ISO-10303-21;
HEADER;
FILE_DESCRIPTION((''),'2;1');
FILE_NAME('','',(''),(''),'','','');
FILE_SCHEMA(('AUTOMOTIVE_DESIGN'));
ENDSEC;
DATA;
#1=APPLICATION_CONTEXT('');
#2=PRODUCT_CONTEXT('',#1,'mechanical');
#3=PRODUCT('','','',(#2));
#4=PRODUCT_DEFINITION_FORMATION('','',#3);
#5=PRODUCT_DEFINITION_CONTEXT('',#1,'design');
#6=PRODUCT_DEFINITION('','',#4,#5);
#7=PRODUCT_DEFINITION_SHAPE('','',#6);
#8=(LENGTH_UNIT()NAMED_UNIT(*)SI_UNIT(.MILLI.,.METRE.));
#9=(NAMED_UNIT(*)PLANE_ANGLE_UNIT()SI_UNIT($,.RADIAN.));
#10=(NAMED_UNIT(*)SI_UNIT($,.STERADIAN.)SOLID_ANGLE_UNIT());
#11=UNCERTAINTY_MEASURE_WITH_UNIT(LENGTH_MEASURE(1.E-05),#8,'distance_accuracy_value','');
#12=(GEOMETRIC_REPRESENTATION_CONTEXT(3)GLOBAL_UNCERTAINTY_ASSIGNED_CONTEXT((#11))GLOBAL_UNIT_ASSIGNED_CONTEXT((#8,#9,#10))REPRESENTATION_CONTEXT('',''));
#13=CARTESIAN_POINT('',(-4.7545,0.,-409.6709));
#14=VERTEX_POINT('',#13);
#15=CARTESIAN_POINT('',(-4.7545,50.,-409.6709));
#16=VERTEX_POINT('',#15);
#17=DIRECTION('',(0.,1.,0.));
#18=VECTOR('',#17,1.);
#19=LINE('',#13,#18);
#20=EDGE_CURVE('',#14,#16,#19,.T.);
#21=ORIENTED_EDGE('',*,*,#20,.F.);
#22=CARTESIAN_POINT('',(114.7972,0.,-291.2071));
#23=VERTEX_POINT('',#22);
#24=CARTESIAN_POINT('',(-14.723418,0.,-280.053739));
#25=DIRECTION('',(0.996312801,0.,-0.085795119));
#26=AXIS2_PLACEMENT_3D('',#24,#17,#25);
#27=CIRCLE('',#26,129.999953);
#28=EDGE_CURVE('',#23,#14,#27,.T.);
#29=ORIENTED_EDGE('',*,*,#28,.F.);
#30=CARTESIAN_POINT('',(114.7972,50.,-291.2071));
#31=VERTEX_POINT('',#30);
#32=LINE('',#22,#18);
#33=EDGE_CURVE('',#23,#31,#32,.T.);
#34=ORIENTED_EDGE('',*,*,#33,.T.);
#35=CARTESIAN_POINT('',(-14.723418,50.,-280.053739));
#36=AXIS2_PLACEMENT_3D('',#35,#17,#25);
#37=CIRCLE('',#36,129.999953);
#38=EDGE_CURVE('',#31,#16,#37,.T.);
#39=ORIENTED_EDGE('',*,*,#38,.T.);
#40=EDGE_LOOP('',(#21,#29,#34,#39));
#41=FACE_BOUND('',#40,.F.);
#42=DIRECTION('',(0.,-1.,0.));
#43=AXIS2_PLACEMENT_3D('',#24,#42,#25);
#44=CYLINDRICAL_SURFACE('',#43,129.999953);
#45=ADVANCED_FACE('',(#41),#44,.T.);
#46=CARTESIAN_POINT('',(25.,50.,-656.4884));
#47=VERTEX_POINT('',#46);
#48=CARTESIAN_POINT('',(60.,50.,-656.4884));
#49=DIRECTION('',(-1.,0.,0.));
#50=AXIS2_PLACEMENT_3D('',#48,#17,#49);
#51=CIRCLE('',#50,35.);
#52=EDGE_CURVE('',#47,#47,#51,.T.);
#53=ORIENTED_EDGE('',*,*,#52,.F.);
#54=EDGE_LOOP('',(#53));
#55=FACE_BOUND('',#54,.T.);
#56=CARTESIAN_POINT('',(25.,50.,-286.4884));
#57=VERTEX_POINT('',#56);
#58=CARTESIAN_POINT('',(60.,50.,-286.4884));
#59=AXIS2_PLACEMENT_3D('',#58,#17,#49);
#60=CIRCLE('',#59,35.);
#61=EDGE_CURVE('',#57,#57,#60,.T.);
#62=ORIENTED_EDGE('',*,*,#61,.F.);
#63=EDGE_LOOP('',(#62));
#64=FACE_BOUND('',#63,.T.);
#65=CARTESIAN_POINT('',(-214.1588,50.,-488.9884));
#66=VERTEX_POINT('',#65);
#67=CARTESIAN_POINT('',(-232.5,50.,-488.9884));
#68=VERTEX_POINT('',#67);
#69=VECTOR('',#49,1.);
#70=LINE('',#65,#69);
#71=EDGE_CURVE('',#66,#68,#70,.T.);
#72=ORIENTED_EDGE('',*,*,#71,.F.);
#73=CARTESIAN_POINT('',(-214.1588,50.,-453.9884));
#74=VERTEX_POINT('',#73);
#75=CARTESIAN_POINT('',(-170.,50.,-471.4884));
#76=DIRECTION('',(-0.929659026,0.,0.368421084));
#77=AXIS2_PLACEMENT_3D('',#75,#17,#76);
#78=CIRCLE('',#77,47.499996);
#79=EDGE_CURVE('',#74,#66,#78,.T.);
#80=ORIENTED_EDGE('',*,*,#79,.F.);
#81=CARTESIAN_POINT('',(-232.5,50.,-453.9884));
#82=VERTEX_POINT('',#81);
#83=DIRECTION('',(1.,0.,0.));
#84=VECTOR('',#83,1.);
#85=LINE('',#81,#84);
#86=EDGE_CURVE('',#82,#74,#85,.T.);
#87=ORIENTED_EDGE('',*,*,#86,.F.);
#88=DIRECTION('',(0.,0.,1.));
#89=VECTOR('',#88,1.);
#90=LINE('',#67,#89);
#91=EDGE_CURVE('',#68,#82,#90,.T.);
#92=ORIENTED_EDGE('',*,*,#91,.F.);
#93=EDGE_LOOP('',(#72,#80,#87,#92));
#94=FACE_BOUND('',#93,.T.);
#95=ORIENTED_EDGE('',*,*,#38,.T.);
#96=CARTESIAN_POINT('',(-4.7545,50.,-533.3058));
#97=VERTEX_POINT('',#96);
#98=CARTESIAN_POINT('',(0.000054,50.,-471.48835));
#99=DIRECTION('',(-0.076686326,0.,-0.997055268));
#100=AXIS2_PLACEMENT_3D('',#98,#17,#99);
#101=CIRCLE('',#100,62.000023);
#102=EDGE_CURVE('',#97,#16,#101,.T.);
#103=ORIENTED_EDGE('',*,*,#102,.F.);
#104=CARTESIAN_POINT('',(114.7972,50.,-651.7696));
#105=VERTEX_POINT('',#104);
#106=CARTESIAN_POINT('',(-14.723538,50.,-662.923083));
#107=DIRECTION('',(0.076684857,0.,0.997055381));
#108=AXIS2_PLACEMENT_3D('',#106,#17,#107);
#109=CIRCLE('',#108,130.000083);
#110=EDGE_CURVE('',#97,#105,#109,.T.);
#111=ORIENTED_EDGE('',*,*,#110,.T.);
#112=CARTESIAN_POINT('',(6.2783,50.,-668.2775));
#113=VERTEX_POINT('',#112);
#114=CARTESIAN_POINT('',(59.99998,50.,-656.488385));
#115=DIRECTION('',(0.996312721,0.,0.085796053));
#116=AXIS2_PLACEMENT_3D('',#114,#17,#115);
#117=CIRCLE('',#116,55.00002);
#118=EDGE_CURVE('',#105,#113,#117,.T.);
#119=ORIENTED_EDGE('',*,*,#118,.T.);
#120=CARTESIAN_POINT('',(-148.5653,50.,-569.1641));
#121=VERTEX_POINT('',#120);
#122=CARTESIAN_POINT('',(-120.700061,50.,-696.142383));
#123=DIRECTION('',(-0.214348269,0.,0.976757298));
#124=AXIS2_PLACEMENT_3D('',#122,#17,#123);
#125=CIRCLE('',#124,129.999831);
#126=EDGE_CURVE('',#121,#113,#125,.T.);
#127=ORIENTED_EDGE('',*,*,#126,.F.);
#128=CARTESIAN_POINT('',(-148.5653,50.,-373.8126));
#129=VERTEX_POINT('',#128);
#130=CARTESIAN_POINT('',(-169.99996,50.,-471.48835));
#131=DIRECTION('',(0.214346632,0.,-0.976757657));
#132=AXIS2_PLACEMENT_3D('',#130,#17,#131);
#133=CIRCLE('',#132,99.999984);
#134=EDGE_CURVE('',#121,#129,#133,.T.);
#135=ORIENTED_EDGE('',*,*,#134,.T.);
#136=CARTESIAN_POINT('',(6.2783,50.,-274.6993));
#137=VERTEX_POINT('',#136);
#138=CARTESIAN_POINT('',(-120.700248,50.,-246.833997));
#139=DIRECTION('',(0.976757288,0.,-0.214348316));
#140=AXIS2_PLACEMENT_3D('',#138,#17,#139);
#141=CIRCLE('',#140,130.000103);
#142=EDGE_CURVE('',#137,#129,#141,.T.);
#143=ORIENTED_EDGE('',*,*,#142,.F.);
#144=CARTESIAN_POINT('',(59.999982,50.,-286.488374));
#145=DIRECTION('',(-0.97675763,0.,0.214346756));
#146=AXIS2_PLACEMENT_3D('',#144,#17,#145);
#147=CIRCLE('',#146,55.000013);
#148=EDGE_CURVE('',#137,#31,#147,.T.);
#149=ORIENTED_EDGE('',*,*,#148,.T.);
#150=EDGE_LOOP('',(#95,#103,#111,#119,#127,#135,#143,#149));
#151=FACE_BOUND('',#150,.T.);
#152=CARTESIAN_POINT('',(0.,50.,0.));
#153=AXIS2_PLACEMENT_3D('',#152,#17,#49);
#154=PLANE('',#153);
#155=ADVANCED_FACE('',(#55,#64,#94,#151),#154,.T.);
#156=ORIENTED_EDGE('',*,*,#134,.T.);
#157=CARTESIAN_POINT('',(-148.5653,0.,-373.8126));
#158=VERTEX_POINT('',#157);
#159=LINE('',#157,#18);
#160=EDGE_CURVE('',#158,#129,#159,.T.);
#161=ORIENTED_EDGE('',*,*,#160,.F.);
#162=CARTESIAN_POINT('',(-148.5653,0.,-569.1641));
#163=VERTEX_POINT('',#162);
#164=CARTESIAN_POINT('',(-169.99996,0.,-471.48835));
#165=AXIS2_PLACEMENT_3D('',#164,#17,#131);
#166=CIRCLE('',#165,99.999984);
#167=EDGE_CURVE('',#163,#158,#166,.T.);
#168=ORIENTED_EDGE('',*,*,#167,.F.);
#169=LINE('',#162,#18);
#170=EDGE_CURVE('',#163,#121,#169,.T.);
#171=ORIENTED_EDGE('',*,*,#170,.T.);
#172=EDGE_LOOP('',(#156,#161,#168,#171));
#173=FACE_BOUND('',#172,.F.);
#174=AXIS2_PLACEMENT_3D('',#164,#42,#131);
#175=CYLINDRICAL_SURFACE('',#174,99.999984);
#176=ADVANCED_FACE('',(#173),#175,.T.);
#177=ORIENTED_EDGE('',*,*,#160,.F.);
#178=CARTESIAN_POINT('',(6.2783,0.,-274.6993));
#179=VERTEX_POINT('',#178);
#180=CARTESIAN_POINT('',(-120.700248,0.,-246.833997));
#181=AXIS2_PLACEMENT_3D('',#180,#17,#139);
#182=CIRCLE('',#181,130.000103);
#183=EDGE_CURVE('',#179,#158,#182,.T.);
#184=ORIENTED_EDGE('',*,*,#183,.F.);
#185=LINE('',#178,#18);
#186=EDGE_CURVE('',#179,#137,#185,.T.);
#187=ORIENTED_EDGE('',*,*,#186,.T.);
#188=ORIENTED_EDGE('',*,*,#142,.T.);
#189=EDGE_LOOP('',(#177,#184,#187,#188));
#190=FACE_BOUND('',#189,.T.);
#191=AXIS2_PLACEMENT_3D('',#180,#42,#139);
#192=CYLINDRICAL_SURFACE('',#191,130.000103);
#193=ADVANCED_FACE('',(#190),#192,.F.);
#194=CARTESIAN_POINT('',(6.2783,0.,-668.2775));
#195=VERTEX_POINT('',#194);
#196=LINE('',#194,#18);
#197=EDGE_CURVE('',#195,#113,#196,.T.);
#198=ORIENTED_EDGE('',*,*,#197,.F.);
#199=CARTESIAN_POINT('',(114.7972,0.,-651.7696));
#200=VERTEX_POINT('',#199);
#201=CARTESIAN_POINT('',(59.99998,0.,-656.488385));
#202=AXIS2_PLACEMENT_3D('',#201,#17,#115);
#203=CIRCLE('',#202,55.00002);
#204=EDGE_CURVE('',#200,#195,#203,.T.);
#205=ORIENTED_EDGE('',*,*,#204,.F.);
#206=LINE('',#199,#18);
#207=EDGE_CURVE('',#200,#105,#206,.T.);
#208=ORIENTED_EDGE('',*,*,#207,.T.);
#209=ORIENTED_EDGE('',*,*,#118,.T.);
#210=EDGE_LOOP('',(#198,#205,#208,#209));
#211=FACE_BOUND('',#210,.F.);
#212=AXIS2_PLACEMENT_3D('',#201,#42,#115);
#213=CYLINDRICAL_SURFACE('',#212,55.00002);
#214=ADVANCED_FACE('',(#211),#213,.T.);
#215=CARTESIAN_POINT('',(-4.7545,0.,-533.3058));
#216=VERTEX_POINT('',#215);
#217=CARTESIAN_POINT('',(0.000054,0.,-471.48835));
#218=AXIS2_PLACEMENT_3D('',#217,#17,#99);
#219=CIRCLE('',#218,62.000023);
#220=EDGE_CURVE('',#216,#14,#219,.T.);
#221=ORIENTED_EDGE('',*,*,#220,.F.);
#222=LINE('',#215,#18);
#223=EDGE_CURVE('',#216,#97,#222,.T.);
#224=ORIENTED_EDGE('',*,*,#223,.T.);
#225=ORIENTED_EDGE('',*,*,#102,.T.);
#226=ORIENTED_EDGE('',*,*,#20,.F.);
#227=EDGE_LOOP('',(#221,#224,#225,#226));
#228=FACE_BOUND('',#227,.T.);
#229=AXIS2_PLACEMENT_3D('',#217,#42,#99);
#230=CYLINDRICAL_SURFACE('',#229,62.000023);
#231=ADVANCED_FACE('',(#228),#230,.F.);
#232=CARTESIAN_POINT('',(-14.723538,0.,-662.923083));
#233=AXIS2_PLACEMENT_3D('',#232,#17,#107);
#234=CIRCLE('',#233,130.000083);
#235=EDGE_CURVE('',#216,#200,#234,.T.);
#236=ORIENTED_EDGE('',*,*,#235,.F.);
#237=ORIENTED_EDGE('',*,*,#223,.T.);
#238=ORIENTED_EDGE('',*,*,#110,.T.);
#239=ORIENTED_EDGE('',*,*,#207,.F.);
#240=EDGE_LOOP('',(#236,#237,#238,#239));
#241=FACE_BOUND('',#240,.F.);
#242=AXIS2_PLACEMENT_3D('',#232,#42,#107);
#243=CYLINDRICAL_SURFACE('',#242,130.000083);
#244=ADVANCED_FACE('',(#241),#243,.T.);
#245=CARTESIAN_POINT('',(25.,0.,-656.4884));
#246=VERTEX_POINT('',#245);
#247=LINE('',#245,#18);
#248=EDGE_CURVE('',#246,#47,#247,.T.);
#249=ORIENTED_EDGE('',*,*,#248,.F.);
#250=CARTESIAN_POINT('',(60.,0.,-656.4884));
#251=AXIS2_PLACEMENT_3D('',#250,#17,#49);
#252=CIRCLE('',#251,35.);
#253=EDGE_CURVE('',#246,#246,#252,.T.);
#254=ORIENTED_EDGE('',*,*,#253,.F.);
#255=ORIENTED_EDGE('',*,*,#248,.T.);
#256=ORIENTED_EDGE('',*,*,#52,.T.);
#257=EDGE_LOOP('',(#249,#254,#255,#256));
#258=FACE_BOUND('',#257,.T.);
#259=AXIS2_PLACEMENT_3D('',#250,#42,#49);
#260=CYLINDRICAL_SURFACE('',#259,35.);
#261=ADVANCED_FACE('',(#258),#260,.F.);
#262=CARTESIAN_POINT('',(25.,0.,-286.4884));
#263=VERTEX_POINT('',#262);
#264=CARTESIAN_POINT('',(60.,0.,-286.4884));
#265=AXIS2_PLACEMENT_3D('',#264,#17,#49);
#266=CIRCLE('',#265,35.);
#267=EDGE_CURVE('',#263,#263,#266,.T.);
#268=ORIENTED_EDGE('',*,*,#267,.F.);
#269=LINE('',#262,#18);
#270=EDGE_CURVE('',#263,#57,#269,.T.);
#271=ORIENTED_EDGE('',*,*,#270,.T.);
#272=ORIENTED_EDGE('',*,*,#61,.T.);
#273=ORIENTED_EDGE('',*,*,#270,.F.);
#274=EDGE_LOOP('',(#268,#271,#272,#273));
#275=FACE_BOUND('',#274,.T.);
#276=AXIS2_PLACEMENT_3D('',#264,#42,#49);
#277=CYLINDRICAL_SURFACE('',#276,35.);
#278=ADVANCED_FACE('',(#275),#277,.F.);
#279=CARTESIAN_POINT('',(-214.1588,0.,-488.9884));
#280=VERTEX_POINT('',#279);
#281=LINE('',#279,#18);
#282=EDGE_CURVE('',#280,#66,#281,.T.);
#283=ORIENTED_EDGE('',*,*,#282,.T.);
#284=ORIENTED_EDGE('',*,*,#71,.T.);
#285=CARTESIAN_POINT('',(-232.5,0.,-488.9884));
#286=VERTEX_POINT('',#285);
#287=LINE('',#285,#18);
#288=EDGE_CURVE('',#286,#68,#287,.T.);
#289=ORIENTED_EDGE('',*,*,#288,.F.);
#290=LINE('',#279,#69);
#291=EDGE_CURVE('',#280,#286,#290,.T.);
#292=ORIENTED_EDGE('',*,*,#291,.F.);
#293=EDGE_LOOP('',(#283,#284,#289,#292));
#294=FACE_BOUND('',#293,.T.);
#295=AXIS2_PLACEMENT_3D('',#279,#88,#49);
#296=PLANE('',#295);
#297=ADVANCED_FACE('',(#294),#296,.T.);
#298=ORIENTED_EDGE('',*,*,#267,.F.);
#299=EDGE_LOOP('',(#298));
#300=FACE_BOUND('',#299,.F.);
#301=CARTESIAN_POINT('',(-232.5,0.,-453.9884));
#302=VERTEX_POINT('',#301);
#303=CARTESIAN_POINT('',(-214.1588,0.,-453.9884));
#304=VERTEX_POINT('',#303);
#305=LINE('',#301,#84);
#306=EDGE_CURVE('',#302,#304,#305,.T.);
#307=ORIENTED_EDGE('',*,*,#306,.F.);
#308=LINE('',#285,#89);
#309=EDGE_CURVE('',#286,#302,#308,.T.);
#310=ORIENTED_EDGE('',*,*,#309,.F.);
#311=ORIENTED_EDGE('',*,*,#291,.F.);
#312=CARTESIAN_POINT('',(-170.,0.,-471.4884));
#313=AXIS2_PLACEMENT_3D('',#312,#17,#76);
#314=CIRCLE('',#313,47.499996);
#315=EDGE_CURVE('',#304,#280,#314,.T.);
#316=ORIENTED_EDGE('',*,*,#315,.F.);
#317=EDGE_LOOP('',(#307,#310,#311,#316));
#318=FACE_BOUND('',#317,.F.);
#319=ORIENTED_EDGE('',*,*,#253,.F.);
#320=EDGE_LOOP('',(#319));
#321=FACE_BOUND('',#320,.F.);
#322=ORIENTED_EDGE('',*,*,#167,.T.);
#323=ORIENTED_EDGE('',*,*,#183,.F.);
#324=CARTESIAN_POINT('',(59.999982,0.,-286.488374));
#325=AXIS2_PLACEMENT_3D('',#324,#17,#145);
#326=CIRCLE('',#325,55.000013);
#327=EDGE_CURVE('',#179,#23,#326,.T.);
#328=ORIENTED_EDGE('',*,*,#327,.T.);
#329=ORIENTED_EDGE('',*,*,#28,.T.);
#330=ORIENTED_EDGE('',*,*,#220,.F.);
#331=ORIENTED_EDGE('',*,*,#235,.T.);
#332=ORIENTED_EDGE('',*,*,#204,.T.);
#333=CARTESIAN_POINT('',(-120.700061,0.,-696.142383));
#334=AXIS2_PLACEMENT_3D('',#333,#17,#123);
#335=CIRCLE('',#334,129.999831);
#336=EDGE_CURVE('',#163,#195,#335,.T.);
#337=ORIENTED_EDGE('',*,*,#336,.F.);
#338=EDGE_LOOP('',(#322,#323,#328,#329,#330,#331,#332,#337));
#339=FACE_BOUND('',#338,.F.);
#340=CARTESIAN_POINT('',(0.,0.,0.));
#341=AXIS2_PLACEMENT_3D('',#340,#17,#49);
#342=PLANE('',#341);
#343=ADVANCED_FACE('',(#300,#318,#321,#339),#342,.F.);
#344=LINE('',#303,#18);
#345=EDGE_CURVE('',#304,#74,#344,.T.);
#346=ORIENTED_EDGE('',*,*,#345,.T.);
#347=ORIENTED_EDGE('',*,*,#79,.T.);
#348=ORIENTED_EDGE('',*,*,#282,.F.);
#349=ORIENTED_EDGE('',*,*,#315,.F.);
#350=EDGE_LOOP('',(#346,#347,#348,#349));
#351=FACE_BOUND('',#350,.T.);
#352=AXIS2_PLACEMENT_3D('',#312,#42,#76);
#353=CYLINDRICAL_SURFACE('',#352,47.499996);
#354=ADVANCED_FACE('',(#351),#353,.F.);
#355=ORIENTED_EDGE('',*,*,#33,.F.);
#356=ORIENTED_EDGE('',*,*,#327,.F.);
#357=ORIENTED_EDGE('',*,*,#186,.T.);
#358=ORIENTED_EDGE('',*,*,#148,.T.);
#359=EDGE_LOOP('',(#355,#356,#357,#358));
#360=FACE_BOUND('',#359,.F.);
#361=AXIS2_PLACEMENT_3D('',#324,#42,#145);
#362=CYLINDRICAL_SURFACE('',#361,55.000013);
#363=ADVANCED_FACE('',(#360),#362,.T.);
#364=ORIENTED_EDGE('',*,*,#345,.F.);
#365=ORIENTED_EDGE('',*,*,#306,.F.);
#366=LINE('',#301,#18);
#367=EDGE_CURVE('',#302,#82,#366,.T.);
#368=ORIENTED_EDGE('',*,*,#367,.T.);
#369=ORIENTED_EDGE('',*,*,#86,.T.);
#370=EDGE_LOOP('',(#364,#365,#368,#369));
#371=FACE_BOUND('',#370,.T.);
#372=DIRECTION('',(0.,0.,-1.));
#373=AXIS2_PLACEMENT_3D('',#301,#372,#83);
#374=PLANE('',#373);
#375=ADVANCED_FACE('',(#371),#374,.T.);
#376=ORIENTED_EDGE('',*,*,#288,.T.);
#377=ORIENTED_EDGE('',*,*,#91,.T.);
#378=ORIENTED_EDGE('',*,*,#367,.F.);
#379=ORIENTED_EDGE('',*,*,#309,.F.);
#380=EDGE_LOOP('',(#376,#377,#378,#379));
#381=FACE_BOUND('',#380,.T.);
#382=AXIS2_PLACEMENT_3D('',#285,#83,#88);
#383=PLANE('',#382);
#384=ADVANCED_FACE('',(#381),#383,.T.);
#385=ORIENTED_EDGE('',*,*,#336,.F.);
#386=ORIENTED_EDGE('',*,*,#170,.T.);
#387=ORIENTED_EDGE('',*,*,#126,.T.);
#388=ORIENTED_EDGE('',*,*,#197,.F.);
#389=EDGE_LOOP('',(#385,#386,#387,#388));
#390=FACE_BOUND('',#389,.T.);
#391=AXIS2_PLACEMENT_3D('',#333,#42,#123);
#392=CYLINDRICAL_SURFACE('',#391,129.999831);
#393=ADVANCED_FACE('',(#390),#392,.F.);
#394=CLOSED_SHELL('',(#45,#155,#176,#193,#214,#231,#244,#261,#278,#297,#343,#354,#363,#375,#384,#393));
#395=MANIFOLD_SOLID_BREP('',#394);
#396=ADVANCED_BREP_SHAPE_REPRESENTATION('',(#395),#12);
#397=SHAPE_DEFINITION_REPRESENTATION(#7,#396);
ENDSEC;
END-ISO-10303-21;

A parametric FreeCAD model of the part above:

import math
import FreeCAD as App
import Part
import Sketcher
from FreeCAD import Vector
Q = App.Units.Quantity

doc = App.newDocument("Part")
body = doc.addObject("PartDesign::Body", "Body")

# Sketch on XZ plane
sketch1 = body.newObject("Sketcher::SketchObject", "Sketch")
sketch1.AttachmentSupport = (doc.getObject("XZ_Plane"), [""])
sketch1.MapMode = "FlatFace"
sketch1.addGeometry(Part.ArcOfCircle(Part.Circle(Vector(-120.7001, -696.1426, 0), Vector(0, 0, 1), 130.000034), math.radians(12.377224), math.radians(102.377257)), False)
sketch1.addGeometry(Part.ArcOfCircle(Part.Circle(Vector(-170, -471.4884, 0), Vector(0, 0, 1), 99.999944), math.radians(77.622785), math.radians(282.377227)), False)
sketch1.addGeometry(Part.ArcOfCircle(Part.Circle(Vector(-120.7001, -246.8341, 0), Vector(0, 0, 1), 129.999936), math.radians(-102.377257), math.radians(-12.377267)), False)
sketch1.addGeometry(Part.ArcOfCircle(Part.Circle(Vector(60, -286.4884, 0), Vector(0, 0, 1), 55.000036), math.radians(-4.921716), math.radians(167.622772)), False)
sketch1.addGeometry(Part.ArcOfCircle(Part.Circle(Vector(-14.7235, -280.0537, 0), Vector(0, 0, 1), 130.000039), math.radians(-85.601977), math.radians(-4.921763)), False)
sketch1.addGeometry(Part.ArcOfCircle(Part.Circle(Vector(0, -471.4884, 0), Vector(0, 0, 1), 61.999969), math.radians(94.398067), math.radians(265.601925)), False)
sketch1.addGeometry(Part.ArcOfCircle(Part.Circle(Vector(-14.7235, -662.923, 0), Vector(0, 0, 1), 129.999998), math.radians(4.921763), math.radians(85.601977)), False)
sketch1.addGeometry(Part.ArcOfCircle(Part.Circle(Vector(60, -656.4884, 0), Vector(0, 0, 1), 55.000002), math.radians(-167.622772), math.radians(4.92182)), False)
sketch1.addGeometry(Part.Circle(Vector(60, -656.4884, 0), Vector(0, 0, 1), 35), False)
sketch1.addGeometry(Part.ArcOfCircle(Part.Circle(Vector(-170, -471.4884, 0), Vector(0, 0, 1), 47.499996), math.radians(-158.381726), math.radians(158.381726)), False)
sketch1.addGeometry(Part.LineSegment(Vector(-214.1588, -453.9884, 0), Vector(-232.5, -453.9884, 0)), False)
sketch1.addGeometry(Part.LineSegment(Vector(-232.5, -453.9884, 0), Vector(-232.5, -488.9884, 0)), False)
sketch1.addGeometry(Part.LineSegment(Vector(-232.5, -488.9884, 0), Vector(-214.1588, -488.9884, 0)), False)
sketch1.addGeometry(Part.Circle(Vector(60, -286.4884, 0), Vector(0, 0, 1), 35), False)
sketch1.addConstraint(Sketcher.Constraint("Tangent", 0, 2, 1, 2))
sketch1.addConstraint(Sketcher.Constraint("Tangent", 1, 1, 2, 1))
sketch1.addConstraint(Sketcher.Constraint("Tangent", 2, 2, 3, 2))
sketch1.addConstraint(Sketcher.Constraint("Tangent", 3, 1, 4, 2))
sketch1.addConstraint(Sketcher.Constraint("Tangent", 4, 1, 5, 1))
sketch1.addConstraint(Sketcher.Constraint("Tangent", 5, 2, 6, 2))
sketch1.addConstraint(Sketcher.Constraint("Tangent", 6, 1, 7, 2))
sketch1.addConstraint(Sketcher.Constraint("Tangent", 7, 1, 0, 1))
sketch1.addConstraint(Sketcher.Constraint("Coincident", 9, 2, 10, 1))
sketch1.addConstraint(Sketcher.Constraint("Coincident", 10, 2, 11, 1))
sketch1.addConstraint(Sketcher.Constraint("Coincident", 11, 2, 12, 1))
sketch1.addConstraint(Sketcher.Constraint("Coincident", 12, 2, 9, 1))
sketch1.addConstraint(Sketcher.Constraint("Horizontal", 10))
sketch1.addConstraint(Sketcher.Constraint("Vertical", 11))
sketch1.addConstraint(Sketcher.Constraint("Horizontal", 12))
sketch1.addConstraint(Sketcher.Constraint("Coincident", 8, 3, 7, 3))
sketch1.addConstraint(Sketcher.Constraint("Coincident", 9, 3, 1, 3))
sketch1.addConstraint(Sketcher.Constraint("Coincident", 13, 3, 3, 3))
sketch1.addConstraint(Sketcher.Constraint("Equal", 0, 2))
sketch1.addConstraint(Sketcher.Constraint("Equal", 2, 4))
sketch1.addConstraint(Sketcher.Constraint("Equal", 4, 6))
sketch1.addConstraint(Sketcher.Constraint("Equal", 3, 7))
sketch1.addConstraint(Sketcher.Constraint("Equal", 8, 13))
sketch1.addConstraint(Sketcher.Constraint("PointOnObject", 5, 3, -2))
sketch1.addConstraint(Sketcher.Constraint("Horizontal", 1, 3, 5, 3))
sketch1.addConstraint(Sketcher.Constraint("Vertical", 0, 3, 2, 3))
sketch1.addConstraint(Sketcher.Constraint("Vertical", 4, 3, 6, 3))
sketch1.addConstraint(Sketcher.Constraint("Vertical", 9, 2, 12, 2))
sketch1.addConstraint(Sketcher.Constraint("Diameter", 8, Q("70 mm")))
sketch1.addConstraint(Sketcher.Constraint("Radius", 0, Q("130 mm")))
sketch1.addConstraint(Sketcher.Constraint("Radius", 1, Q("100 mm")))
sketch1.addConstraint(Sketcher.Constraint("Radius", 3, Q("55 mm")))
sketch1.addConstraint(Sketcher.Constraint("Radius", 5, Q("62 mm")))
sketch1.addConstraint(Sketcher.Constraint("Radius", 9, Q("47.5 mm")))
sketch1.addConstraint(Sketcher.Constraint("DistanceY", 11, 2, 11, 1, Q("35 mm")))
sketch1.addConstraint(Sketcher.Constraint("DistanceX", 1, 3, -1, 1, Q("170 mm")))
sketch1.addConstraint(Sketcher.Constraint("DistanceX", 1, 3, 3, 3, Q("230 mm")))
sketch1.addConstraint(Sketcher.Constraint("DistanceY", 1, 3, 3, 3, Q("185 mm")))
sketch1.addConstraint(Sketcher.Constraint("DistanceX", 10, 2, 1, 3, Q("62.5 mm")))
sketch1.addConstraint(Sketcher.Constraint("DistanceY", 2, 3, -1, 1, Q("246.834 mm")))
pad1 = body.newObject("PartDesign::Pad", "Pad")
pad1.Profile = sketch1
pad1.Length = 50
pad1.Reversed = True

doc.recompute()
